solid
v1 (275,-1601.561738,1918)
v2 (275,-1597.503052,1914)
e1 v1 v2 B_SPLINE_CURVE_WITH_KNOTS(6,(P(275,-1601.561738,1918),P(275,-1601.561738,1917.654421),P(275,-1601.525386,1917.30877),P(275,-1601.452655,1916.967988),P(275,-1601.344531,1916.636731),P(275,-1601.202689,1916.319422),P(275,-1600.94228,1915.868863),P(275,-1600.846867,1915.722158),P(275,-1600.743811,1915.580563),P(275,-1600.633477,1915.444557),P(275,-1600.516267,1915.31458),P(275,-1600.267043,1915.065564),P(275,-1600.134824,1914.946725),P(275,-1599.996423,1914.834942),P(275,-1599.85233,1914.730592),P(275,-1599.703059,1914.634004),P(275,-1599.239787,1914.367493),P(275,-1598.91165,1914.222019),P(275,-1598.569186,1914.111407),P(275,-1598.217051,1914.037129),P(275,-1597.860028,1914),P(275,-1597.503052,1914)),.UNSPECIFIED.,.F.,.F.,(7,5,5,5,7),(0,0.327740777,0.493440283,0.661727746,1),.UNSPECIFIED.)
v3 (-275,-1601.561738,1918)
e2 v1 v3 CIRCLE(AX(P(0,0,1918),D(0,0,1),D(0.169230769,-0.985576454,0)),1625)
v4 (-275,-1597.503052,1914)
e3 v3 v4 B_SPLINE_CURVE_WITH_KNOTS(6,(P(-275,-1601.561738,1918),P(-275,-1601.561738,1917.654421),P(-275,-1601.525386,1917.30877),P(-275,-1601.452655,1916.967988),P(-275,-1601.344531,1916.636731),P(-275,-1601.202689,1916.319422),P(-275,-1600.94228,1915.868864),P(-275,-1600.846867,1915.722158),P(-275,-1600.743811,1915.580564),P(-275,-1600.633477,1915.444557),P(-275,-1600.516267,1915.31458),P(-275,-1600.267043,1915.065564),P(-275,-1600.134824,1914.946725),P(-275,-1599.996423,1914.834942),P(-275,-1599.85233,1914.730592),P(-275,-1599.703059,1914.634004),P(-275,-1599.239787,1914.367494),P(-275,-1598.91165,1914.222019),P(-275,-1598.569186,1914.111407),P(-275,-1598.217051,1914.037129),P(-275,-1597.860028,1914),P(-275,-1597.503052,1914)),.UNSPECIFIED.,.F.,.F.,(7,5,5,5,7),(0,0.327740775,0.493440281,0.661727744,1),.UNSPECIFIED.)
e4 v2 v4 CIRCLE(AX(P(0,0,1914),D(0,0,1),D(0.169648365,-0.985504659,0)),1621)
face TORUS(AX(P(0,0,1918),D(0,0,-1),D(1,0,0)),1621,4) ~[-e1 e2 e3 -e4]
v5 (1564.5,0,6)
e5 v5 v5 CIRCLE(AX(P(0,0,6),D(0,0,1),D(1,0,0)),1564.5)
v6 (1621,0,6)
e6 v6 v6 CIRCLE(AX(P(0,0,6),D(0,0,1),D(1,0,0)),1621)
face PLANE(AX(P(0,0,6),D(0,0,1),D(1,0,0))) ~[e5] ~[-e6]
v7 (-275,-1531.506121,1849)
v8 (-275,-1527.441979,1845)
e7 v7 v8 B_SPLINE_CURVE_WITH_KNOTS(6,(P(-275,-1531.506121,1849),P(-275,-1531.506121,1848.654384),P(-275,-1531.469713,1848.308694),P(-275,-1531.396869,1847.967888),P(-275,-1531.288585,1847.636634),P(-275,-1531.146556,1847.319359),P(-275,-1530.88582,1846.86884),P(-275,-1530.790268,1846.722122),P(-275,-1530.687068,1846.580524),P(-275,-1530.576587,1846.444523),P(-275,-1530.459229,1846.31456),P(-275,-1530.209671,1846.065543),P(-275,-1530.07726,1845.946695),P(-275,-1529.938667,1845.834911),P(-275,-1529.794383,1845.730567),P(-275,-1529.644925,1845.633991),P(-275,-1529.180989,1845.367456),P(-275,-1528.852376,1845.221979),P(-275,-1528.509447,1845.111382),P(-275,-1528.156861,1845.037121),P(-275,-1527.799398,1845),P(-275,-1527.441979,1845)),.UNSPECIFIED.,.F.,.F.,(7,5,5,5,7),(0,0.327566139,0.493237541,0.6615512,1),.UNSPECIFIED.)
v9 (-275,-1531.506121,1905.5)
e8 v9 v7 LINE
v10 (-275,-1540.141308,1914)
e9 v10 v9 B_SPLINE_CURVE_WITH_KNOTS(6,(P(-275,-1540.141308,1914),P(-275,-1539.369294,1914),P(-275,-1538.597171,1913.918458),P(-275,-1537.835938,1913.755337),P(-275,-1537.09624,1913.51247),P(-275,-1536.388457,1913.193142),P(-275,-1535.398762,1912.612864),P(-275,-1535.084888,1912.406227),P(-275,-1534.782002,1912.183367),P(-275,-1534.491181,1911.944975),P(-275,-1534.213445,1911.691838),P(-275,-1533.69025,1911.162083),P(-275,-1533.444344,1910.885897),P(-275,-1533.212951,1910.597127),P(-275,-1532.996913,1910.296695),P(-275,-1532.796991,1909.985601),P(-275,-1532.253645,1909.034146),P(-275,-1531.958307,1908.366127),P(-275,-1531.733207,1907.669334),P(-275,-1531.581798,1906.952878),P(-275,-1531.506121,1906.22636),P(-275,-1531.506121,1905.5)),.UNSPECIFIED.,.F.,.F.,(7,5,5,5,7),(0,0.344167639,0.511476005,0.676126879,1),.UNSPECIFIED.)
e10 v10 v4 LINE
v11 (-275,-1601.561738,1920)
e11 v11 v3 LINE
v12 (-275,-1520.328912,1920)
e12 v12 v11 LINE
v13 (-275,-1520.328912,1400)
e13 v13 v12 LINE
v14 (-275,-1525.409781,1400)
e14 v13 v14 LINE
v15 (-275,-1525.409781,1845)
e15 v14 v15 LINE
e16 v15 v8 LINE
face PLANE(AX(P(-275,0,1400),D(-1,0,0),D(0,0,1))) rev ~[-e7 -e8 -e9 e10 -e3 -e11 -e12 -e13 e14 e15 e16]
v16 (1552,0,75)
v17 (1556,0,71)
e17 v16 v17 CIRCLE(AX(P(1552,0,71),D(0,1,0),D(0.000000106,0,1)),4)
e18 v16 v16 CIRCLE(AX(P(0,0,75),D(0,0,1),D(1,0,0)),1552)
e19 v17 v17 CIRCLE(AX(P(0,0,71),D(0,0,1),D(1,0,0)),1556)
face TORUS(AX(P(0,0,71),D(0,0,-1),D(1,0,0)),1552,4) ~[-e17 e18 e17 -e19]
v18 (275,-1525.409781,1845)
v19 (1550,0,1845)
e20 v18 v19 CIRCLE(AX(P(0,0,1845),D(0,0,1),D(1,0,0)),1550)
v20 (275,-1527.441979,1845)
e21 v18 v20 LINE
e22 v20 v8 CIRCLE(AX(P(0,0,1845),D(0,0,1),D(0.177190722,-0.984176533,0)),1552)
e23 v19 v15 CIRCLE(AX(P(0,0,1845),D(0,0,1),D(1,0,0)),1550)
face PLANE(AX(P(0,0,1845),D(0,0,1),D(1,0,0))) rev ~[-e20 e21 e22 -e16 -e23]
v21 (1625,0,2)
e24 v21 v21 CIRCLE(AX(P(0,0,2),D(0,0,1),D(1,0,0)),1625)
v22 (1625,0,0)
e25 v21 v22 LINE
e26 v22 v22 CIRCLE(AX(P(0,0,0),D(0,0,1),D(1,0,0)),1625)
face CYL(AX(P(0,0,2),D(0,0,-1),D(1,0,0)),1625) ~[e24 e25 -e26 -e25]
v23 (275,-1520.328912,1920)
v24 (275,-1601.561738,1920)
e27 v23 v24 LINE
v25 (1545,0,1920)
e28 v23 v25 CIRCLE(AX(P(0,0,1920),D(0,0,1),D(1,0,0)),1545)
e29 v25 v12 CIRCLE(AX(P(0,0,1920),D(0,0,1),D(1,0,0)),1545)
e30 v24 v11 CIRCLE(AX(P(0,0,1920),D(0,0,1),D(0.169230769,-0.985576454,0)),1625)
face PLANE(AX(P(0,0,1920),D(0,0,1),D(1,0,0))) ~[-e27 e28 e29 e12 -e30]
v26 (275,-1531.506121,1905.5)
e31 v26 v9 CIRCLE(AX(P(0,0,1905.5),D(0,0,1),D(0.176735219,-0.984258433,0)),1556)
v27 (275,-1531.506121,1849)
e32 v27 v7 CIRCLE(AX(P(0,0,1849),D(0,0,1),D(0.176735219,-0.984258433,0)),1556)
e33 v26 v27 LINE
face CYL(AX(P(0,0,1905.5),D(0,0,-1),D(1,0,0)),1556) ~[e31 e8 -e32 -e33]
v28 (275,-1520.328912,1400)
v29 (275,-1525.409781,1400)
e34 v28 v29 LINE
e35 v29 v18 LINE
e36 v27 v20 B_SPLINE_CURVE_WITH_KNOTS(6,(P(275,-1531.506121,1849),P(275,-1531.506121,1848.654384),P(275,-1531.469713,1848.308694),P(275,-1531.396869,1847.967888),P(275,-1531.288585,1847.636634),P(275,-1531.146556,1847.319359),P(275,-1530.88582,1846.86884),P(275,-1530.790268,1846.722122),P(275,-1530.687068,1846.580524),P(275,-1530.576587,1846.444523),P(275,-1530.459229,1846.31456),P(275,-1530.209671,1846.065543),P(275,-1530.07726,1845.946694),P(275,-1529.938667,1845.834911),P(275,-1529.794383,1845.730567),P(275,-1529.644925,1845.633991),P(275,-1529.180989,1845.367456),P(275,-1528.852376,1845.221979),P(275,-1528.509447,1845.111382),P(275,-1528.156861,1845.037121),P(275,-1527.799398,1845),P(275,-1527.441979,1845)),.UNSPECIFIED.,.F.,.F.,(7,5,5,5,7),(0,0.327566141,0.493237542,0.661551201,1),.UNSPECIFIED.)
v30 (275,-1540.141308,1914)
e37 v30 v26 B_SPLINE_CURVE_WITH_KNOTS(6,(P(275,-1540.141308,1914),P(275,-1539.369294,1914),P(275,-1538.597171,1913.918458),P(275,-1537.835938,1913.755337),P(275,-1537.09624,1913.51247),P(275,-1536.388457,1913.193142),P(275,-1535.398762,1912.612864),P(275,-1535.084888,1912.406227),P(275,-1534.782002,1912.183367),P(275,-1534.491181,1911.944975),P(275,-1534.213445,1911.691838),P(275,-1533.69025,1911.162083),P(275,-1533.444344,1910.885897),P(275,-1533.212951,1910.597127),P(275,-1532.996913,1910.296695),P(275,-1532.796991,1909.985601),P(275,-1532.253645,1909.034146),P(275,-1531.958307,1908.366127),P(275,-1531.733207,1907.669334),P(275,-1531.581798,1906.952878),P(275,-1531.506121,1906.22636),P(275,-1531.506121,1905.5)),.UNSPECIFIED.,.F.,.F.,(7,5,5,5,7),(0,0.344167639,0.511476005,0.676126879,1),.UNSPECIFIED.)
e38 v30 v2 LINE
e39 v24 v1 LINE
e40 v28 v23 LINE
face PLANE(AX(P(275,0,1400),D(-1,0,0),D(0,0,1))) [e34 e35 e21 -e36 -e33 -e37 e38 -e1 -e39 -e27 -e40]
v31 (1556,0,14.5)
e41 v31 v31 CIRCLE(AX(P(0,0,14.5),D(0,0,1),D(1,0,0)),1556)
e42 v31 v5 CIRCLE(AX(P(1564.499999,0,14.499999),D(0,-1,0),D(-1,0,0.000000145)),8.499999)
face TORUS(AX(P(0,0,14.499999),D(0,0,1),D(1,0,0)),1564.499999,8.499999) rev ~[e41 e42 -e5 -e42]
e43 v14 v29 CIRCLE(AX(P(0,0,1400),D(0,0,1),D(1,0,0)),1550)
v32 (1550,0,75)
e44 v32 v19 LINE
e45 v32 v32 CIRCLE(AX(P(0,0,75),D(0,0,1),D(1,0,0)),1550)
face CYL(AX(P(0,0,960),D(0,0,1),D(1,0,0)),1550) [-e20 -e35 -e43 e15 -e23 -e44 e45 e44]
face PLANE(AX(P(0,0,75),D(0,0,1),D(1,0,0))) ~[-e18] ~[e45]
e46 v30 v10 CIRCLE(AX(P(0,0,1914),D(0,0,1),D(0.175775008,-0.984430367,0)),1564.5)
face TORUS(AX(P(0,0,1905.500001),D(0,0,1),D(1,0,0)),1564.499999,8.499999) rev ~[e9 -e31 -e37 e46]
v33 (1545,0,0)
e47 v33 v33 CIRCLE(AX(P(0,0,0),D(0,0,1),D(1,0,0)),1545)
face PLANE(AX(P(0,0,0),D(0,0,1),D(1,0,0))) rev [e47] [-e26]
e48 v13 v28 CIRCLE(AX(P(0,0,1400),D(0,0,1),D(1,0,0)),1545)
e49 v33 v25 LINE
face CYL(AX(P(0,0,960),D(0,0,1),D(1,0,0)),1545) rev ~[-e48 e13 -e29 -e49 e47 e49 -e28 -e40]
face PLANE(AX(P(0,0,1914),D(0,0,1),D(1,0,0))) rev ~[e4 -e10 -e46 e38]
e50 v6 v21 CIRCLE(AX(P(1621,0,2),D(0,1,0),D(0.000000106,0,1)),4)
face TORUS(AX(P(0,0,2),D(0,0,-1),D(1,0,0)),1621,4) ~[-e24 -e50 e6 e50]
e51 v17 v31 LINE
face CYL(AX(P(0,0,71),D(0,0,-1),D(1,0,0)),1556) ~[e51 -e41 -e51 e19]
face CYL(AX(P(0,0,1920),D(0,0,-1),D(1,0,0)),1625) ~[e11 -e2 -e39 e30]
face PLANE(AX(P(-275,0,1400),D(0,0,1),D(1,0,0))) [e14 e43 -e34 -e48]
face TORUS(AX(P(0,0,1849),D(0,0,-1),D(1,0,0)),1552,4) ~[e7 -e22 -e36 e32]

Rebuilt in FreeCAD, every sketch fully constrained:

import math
import FreeCAD as App
import Part
import Sketcher
from FreeCAD import Vector


def add_polygon(sketch, points):
    """Adds a closed chain of lines whose ends are joined by coincident constraints."""
    first, n = sketch.GeometryCount, len(points)
    for a, b in zip(points, points[1:] + points[:1]):
        sketch.addGeometry(Part.LineSegment(App.Vector(*a, 0), App.Vector(*b, 0)), False)
    for i in range(n):
        sketch.addConstraint(Sketcher.Constraint("Coincident", first + i, 2, first + (i + 1) % n, 1))

doc = App.newDocument("Part")
body = doc.addObject("PartDesign::Body", "Body")

# Sketch on XZ plane
sketch1 = doc.addObject("Sketcher::SketchObject", "Sketch")
body.addObject(sketch1)
sketch1.AttachmentSupport = (doc.XZ_Plane, [""])
sketch1.MapMode = "FlatFace"
add_polygon(sketch1, [(-275, 1920), (-275, 1400), (275, 1400), (275, 1920)])  # lines 0-3
sketch1.addConstraint([
    Sketcher.Constraint("Vertical", 0),
    Sketcher.Constraint("Horizontal", 1),
    Sketcher.Constraint("Vertical", 2),
    Sketcher.Constraint("Horizontal", 3),
    Sketcher.Constraint("DistanceX", 1, 1, 1, 2, 550.0),
    Sketcher.Constraint("DistanceY", 0, 2, 0, 1, 520.0),
    Sketcher.Constraint("DistanceX", 0, 2, -1, 1, 275.0),
    Sketcher.Constraint("DistanceY", -1, 1, 0, 2, 1400.0),
])
pad1 = doc.addObject("PartDesign::Pad", "Pad")
body.addObject(pad1)
pad1.Profile = sketch1
pad1.Length = 2500
body2 = doc.addObject("PartDesign::Body", "Body001")

# Sketch on XZ plane
sketch2 = doc.addObject("Sketcher::SketchObject", "Sketch001")
body2.addObject(sketch2)
sketch2.AttachmentSupport = (doc.getObject("XZ_Plane001"), [""])
sketch2.MapMode = "FlatFace"
sketch2.addGeometry([
    Part.LineSegment(Vector(1550, 0, 0), Vector(1550, 75, 0)),  # 0
    Part.LineSegment(Vector(1550, 75, 0), Vector(1552, 75, 0)),  # 1
    Part.ArcOfCircle(Part.Circle(Vector(1552, 71, 0), Vector(0, 0, 1), 4), math.radians(0), math.radians(90)),  # 2
    Part.LineSegment(Vector(1556, 71, 0), Vector(1556, 14.5, 0)),  # 3
    Part.ArcOfCircle(Part.Circle(Vector(1564.5, 14.5, 0), Vector(0, 0, 1), 8.5), math.radians(180), math.radians(270)),  # 4
    Part.LineSegment(Vector(1564.5, 6, 0), Vector(1621, 6, 0)),  # 5
    Part.ArcOfCircle(Part.Circle(Vector(1621, 2, 0), Vector(0, 0, 1), 4), math.radians(0), math.radians(90)),  # 6
    Part.LineSegment(Vector(1625, 2, 0), Vector(1625, 0, 0)),  # 7
    Part.LineSegment(Vector(1625, 0, 0), Vector(1550, 0, 0)),  # 8
], False)
sketch2.addConstraint([
    Sketcher.Constraint("Coincident", 0, 2, 1, 1),
    Sketcher.Constraint("Tangent", 1, 2, 2, 2),
    Sketcher.Constraint("Tangent", 2, 1, 3, 1),
    Sketcher.Constraint("Tangent", 3, 2, 4, 1),
    Sketcher.Constraint("Tangent", 4, 2, 5, 1),
    Sketcher.Constraint("Tangent", 5, 2, 6, 2),
    Sketcher.Constraint("Tangent", 6, 1, 7, 1),
    Sketcher.Constraint("Coincident", 7, 2, 8, 1),
    Sketcher.Constraint("Coincident", 8, 2, 0, 1),
    Sketcher.Constraint("Vertical", 0),
    Sketcher.Constraint("Horizontal", 1),
    Sketcher.Constraint("Vertical", 3),
    Sketcher.Constraint("Horizontal", 5),
    Sketcher.Constraint("Vertical", 7),
    Sketcher.Constraint("Horizontal", 8),
    Sketcher.Constraint("Equal", 2, 6),
    Sketcher.Constraint("PointOnObject", 7, 2, -1),
    Sketcher.Constraint("Equal", 8, 0),
    Sketcher.Constraint("Equal", 5, 3),
    Sketcher.Constraint("Radius", 2, 4.0),
    Sketcher.Constraint("Radius", 4, 8.499999),
    Sketcher.Constraint("DistanceX", 1, 1, 1, 2, 2.0),
    Sketcher.Constraint("DistanceX", 8, 2, 8, 1, 75.0),
    Sketcher.Constraint("DistanceX", -1, 1, 2, 3, 1552.0),
])
revolution = doc.addObject("PartDesign::Revolution", "Revolution")
body2.addObject(revolution)
revolution.Profile = sketch2
revolution.ReferenceAxis = (sketch2, ["V_Axis"])
revolution.Angle = 360
body3 = doc.addObject("PartDesign::Body", "Body002")

# Sketch on XZ plane
sketch3 = doc.addObject("Sketcher::SketchObject", "Sketch002")
body3.addObject(sketch3)
sketch3.AttachmentSupport = (doc.getObject("XZ_Plane002"), [""])
sketch3.MapMode = "FlatFace"
sketch3.addGeometry([
    Part.LineSegment(Vector(1550, 1920, 0), Vector(1625, 1920, 0)),  # 0
    Part.LineSegment(Vector(1625, 1920, 0), Vector(1625, 1918, 0)),  # 1
    Part.ArcOfCircle(Part.Circle(Vector(1621, 1918, 0), Vector(0, 0, 1), 4), math.radians(-90), math.radians(0)),  # 2
    Part.LineSegment(Vector(1621, 1914, 0), Vector(1564.5, 1914, 0)),  # 3
    Part.ArcOfCircle(Part.Circle(Vector(1564.5, 1905.5, 0), Vector(0, 0, 1), 8.5), math.radians(90), math.radians(180)),  # 4
    Part.LineSegment(Vector(1556, 1905.5, 0), Vector(1556, 1849, 0)),  # 5
    Part.ArcOfCircle(Part.Circle(Vector(1552, 1849, 0), Vector(0, 0, 1), 4), math.radians(-90), math.radians(0)),  # 6
    Part.LineSegment(Vector(1552, 1845, 0), Vector(1550, 1845, 0)),  # 7
    Part.LineSegment(Vector(1550, 1845, 0), Vector(1550, 1920, 0)),  # 8
], False)
sketch3.addConstraint([
    Sketcher.Constraint("Coincident", 0, 2, 1, 1),
    Sketcher.Constraint("Tangent", 1, 2, 2, 2),
    Sketcher.Constraint("Tangent", 2, 1, 3, 1),
    Sketcher.Constraint("Tangent", 3, 2, 4, 1),
    Sketcher.Constraint("Tangent", 4, 2, 5, 1),
    Sketcher.Constraint("Tangent", 5, 2, 6, 2),
    Sketcher.Constraint("Tangent", 6, 1, 7, 1),
    Sketcher.Constraint("Coincident", 7, 2, 8, 1),
    Sketcher.Constraint("Coincident", 8, 2, 0, 1),
    Sketcher.Constraint("Horizontal", 0),
    Sketcher.Constraint("Vertical", 1),
    Sketcher.Constraint("Horizontal", 3),
    Sketcher.Constraint("Vertical", 5),
    Sketcher.Constraint("Horizontal", 7),
    Sketcher.Constraint("Vertical", 8),
    Sketcher.Constraint("Equal", 2, 6),
    Sketcher.Constraint("Equal", 7, 1),
    Sketcher.Constraint("Equal", 3, 5),
    Sketcher.Constraint("Radius", 2, 4.0),
    Sketcher.Constraint("Radius", 4, 8.499999),
    Sketcher.Constraint("DistanceX", 0, 1, 0, 2, 75.0),
    Sketcher.Constraint("DistanceX", 7, 2, 7, 1, 2.0),
    Sketcher.Constraint("DistanceX", -1, 1, 2, 3, 1621.0),
    Sketcher.Constraint("DistanceY", -1, 1, 2, 3, 1918.0),
])
revolution2 = doc.addObject("PartDesign::Revolution", "Revolution001")
body3.addObject(revolution2)
revolution2.Profile = sketch3
revolution2.ReferenceAxis = (sketch3, ["V_Axis"])
revolution2.Angle = 360
body4 = doc.addObject("PartDesign::Body", "Body003")

# Sketch on XZ plane
sketch4 = doc.addObject("Sketcher::SketchObject", "Sketch003")
body4.addObject(sketch4)
sketch4.AttachmentSupport = (doc.getObject("XZ_Plane003"), [""])
sketch4.MapMode = "FlatFace"
add_polygon(sketch4, [(1545, 1920), (1545, 0), (1550, 0), (1550, 1920)])  # lines 0-3
sketch4.addConstraint([
    Sketcher.Constraint("Vertical", 0),
    Sketcher.Constraint("Horizontal", 1),
    Sketcher.Constraint("Vertical", 2),
    Sketcher.Constraint("Horizontal", 3),
    Sketcher.Constraint("PointOnObject", 0, 2, -1),
    Sketcher.Constraint("DistanceX", 1, 1, 1, 2, 5.0),
    Sketcher.Constraint("DistanceY", 0, 2, 0, 1, 1920.0),
    Sketcher.Constraint("DistanceX", -1, 1, 0, 2, 1545.0),
])
revolution3 = doc.addObject("PartDesign::Revolution", "Revolution002")
body4.addObject(revolution3)
revolution3.Profile = sketch4
revolution3.ReferenceAxis = (sketch4, ["V_Axis"])
revolution3.Angle = 360
doc.recompute()

boolean = doc.addObject("PartDesign::Boolean", "Boolean")
body4.addObject(boolean)
boolean.Type = "Fuse"
boolean.addObjects([body2])
doc.recompute()

boolean2 = doc.addObject("PartDesign::Boolean", "Boolean001")
body4.addObject(boolean2)
boolean2.Type = "Fuse"
boolean2.addObjects([body3])
doc.recompute()

boolean3 = doc.addObject("PartDesign::Boolean", "Boolean002")
body4.addObject(boolean3)
boolean3.Type = "Cut"
boolean3.addObjects([body])

doc.recompute()
